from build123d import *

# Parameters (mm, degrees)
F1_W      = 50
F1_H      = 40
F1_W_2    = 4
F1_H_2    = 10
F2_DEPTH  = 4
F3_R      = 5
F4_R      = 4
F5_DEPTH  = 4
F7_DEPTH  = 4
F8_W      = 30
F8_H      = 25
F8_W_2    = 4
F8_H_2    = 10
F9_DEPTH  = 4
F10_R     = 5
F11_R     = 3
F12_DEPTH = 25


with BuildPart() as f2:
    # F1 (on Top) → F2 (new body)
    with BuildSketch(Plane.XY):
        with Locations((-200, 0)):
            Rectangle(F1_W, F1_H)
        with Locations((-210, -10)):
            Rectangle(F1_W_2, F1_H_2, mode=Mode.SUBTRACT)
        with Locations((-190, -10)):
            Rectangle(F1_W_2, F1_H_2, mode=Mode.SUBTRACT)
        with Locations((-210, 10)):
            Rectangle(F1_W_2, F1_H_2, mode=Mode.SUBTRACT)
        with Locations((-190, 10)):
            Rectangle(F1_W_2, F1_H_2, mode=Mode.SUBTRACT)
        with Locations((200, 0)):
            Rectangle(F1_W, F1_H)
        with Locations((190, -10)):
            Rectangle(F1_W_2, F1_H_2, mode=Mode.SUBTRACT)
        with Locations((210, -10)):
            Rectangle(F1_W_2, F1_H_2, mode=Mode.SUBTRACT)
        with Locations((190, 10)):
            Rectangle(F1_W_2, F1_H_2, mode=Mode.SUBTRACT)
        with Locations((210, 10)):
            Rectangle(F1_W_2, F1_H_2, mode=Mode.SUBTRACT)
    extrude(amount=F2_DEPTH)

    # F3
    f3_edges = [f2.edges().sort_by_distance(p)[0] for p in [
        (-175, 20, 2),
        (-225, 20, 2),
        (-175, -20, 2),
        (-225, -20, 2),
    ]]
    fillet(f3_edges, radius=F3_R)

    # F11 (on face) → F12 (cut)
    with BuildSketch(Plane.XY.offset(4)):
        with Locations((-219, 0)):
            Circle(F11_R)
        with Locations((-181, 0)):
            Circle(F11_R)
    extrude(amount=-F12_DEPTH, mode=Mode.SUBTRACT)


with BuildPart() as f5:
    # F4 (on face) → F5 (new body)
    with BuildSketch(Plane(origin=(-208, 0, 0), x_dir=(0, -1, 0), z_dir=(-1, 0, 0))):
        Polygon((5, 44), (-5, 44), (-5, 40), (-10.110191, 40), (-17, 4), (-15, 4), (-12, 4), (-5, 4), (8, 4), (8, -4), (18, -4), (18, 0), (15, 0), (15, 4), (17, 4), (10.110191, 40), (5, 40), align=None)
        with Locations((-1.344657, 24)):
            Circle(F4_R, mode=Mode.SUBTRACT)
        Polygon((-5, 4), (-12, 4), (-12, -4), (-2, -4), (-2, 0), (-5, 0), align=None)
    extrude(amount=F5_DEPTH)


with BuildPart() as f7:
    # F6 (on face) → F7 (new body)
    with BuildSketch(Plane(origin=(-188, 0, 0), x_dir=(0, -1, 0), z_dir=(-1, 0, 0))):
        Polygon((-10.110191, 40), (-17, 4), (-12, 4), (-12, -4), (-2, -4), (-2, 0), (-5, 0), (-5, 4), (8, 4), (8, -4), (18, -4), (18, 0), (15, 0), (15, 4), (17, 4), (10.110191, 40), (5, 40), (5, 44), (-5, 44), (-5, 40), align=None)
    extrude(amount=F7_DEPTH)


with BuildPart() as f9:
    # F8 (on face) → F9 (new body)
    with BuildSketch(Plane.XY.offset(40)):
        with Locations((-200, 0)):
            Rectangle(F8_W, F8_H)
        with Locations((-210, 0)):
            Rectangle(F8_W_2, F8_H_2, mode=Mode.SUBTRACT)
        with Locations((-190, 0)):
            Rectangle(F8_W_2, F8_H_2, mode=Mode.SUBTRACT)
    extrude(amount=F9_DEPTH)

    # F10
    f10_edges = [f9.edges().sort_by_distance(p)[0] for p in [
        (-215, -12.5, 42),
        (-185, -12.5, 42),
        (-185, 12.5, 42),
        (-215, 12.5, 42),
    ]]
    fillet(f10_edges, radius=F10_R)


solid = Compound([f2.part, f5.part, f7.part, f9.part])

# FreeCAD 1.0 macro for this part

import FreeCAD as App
import Part
import Sketcher
from FreeCAD import Vector


def edges_at(feature, points):
    """Names of the edges that pass closest to the given points."""
    edges = feature.Shape.Edges
    near = lambda p: min(range(len(edges)), key=lambda i: edges[i].distToShape(Part.Vertex(*p))[0])
    return sorted({f"Edge{near(p) + 1}" for p in points})

doc = App.newDocument("Part")
body = doc.addObject("PartDesign::Body", "Body")
body.AllowCompound = True

# Sketch on XY plane
sketch1 = doc.addObject("Sketcher::SketchObject", "Sketch")
body.addObject(sketch1)
sketch1.AttachmentSupport = (doc.XY_Plane, [""])
sketch1.MapMode = "FlatFace"
sketch1.addGeometry(Part.LineSegment(Vector(-225, 20, 0), Vector(-225, -20, 0)), False)
sketch1.addGeometry(Part.LineSegment(Vector(-225, -20, 0), Vector(-175, -20, 0)), False)
sketch1.addGeometry(Part.LineSegment(Vector(-175, -20, 0), Vector(-175, 20, 0)), False)
sketch1.addGeometry(Part.LineSegment(Vector(-175, 20, 0), Vector(-225, 20, 0)), False)
sketch1.addGeometry(Part.LineSegment(Vector(-208, -15, 0), Vector(-212, -15, 0)), False)
sketch1.addGeometry(Part.LineSegment(Vector(-212, -15, 0), Vector(-212, -5, 0)), False)
sketch1.addGeometry(Part.LineSegment(Vector(-212, -5, 0), Vector(-208, -5, 0)), False)
sketch1.addGeometry(Part.LineSegment(Vector(-208, -5, 0), Vector(-208, -15, 0)), False)
sketch1.addGeometry(Part.LineSegment(Vector(-188, -15, 0), Vector(-192, -15, 0)), False)
sketch1.addGeometry(Part.LineSegment(Vector(-192, -15, 0), Vector(-192, -5, 0)), False)
sketch1.addGeometry(Part.LineSegment(Vector(-192, -5, 0), Vector(-188, -5, 0)), False)
sketch1.addGeometry(Part.LineSegment(Vector(-188, -5, 0), Vector(-188, -15, 0)), False)
sketch1.addGeometry(Part.LineSegment(Vector(-208, 5, 0), Vector(-212, 5, 0)), False)
sketch1.addGeometry(Part.LineSegment(Vector(-212, 5, 0), Vector(-212, 15, 0)), False)
sketch1.addGeometry(Part.LineSegment(Vector(-212, 15, 0), Vector(-208, 15, 0)), False)
sketch1.addGeometry(Part.LineSegment(Vector(-208, 15, 0), Vector(-208, 5, 0)), False)
sketch1.addGeometry(Part.LineSegment(Vector(-188, 5, 0), Vector(-192, 5, 0)), False)
sketch1.addGeometry(Part.LineSegment(Vector(-192, 5, 0), Vector(-192, 15, 0)), False)
sketch1.addGeometry(Part.LineSegment(Vector(-192, 15, 0), Vector(-188, 15, 0)), False)
sketch1.addGeometry(Part.LineSegment(Vector(-188, 15, 0), Vector(-188, 5, 0)), False)
sketch1.addGeometry(Part.LineSegment(Vector(175, 20, 0), Vector(175, -20, 0)), False)
sketch1.addGeometry(Part.LineSegment(Vector(175, -20, 0), Vector(225, -20, 0)), False)
sketch1.addGeometry(Part.LineSegment(Vector(225, -20, 0), Vector(225, 20, 0)), False)
sketch1.addGeometry(Part.LineSegment(Vector(225, 20, 0), Vector(175, 20, 0)), False)
sketch1.addGeometry(Part.LineSegment(Vector(192, -15, 0), Vector(188, -15, 0)), False)
sketch1.addGeometry(Part.LineSegment(Vector(188, -15, 0), Vector(188, -5, 0)), False)
sketch1.addGeometry(Part.LineSegment(Vector(188, -5, 0), Vector(192, -5, 0)), False)
sketch1.addGeometry(Part.LineSegment(Vector(192, -5, 0), Vector(192, -15, 0)), False)
sketch1.addGeometry(Part.LineSegment(Vector(212, -15, 0), Vector(208, -15, 0)), False)
sketch1.addGeometry(Part.LineSegment(Vector(208, -15, 0), Vector(208, -5, 0)), False)
sketch1.addGeometry(Part.LineSegment(Vector(208, -5, 0), Vector(212, -5, 0)), False)
sketch1.addGeometry(Part.LineSegment(Vector(212, -5, 0), Vector(212, -15, 0)), False)
sketch1.addGeometry(Part.LineSegment(Vector(192, 5, 0), Vector(188, 5, 0)), False)
sketch1.addGeometry(Part.LineSegment(Vector(188, 5, 0), Vector(188, 15, 0)), False)
sketch1.addGeometry(Part.LineSegment(Vector(188, 15, 0), Vector(192, 15, 0)), False)
sketch1.addGeometry(Part.LineSegment(Vector(192, 15, 0), Vector(192, 5, 0)), False)
sketch1.addGeometry(Part.LineSegment(Vector(212, 5, 0), Vector(208, 5, 0)), False)
sketch1.addGeometry(Part.LineSegment(Vector(208, 5, 0), Vector(208, 15, 0)), False)
sketch1.addGeometry(Part.LineSegment(Vector(208, 15, 0), Vector(212, 15, 0)), False)
sketch1.addGeometry(Part.LineSegment(Vector(212, 15, 0), Vector(212, 5, 0)), False)
sketch1.addConstraint(Sketcher.Constraint("Coincident", 0, 2, 1, 1))
sketch1.addConstraint(Sketcher.Constraint("Coincident", 1, 2, 2, 1))
sketch1.addConstraint(Sketcher.Constraint("Coincident", 2, 2, 3, 1))
sketch1.addConstraint(Sketcher.Constraint("Coincident", 3, 2, 0, 1))
sketch1.addConstraint(Sketcher.Constraint("Coincident", 4, 2, 5, 1))
sketch1.addConstraint(Sketcher.Constraint("Coincident", 5, 2, 6, 1))
sketch1.addConstraint(Sketcher.Constraint("Coincident", 6, 2, 7, 1))
sketch1.addConstraint(Sketcher.Constraint("Coincident", 7, 2, 4, 1))
sketch1.addConstraint(Sketcher.Constraint("Coincident", 8, 2, 9, 1))
sketch1.addConstraint(Sketcher.Constraint("Coincident", 9, 2, 10, 1))
sketch1.addConstraint(Sketcher.Constraint("Coincident", 10, 2, 11, 1))
sketch1.addConstraint(Sketcher.Constraint("Coincident", 11, 2, 8, 1))
sketch1.addConstraint(Sketcher.Constraint("Coincident", 12, 2, 13, 1))
sketch1.addConstraint(Sketcher.Constraint("Coincident", 13, 2, 14, 1))
sketch1.addConstraint(Sketcher.Constraint("Coincident", 14, 2, 15, 1))
sketch1.addConstraint(Sketcher.Constraint("Coincident", 15, 2, 12, 1))
sketch1.addConstraint(Sketcher.Constraint("Coincident", 16, 2, 17, 1))
sketch1.addConstraint(Sketcher.Constraint("Coincident", 17, 2, 18, 1))
sketch1.addConstraint(Sketcher.Constraint("Coincident", 18, 2, 19, 1))
sketch1.addConstraint(Sketcher.Constraint("Coincident", 19, 2, 16, 1))
sketch1.addConstraint(Sketcher.Constraint("Coincident", 20, 2, 21, 1))
sketch1.addConstraint(Sketcher.Constraint("Coincident", 21, 2, 22, 1))
sketch1.addConstraint(Sketcher.Constraint("Coincident", 22, 2, 23, 1))
sketch1.addConstraint(Sketcher.Constraint("Coincident", 23, 2, 20, 1))
sketch1.addConstraint(Sketcher.Constraint("Coincident", 24, 2, 25, 1))
sketch1.addConstraint(Sketcher.Constraint("Coincident", 25, 2, 26, 1))
sketch1.addConstraint(Sketcher.Constraint("Coincident", 26, 2, 27, 1))
sketch1.addConstraint(Sketcher.Constraint("Coincident", 27, 2, 24, 1))
sketch1.addConstraint(Sketcher.Constraint("Coincident", 28, 2, 29, 1))
sketch1.addConstraint(Sketcher.Constraint("Coincident", 29, 2, 30, 1))
sketch1.addConstraint(Sketcher.Constraint("Coincident", 30, 2, 31, 1))
sketch1.addConstraint(Sketcher.Constraint("Coincident", 31, 2, 28, 1))
sketch1.addConstraint(Sketcher.Constraint("Coincident", 32, 2, 33, 1))
sketch1.addConstraint(Sketcher.Constraint("Coincident", 33, 2, 34, 1))
sketch1.addConstraint(Sketcher.Constraint("Coincident", 34, 2, 35, 1))
sketch1.addConstraint(Sketcher.Constraint("Coincident", 35, 2, 32, 1))
sketch1.addConstraint(Sketcher.Constraint("Coincident", 36, 2, 37, 1))
sketch1.addConstraint(Sketcher.Constraint("Coincident", 37, 2, 38, 1))
sketch1.addConstraint(Sketcher.Constraint("Coincident", 38, 2, 39, 1))
sketch1.addConstraint(Sketcher.Constraint("Coincident", 39, 2, 36, 1))
sketch1.addConstraint(Sketcher.Constraint("Vertical", 0))
sketch1.addConstraint(Sketcher.Constraint("Horizontal", 1))
sketch1.addConstraint(Sketcher.Constraint("Vertical", 2))
sketch1.addConstraint(Sketcher.Constraint("Horizontal", 3))
sketch1.addConstraint(Sketcher.Constraint("Horizontal", 4))
sketch1.addConstraint(Sketcher.Constraint("Vertical", 5))
sketch1.addConstraint(Sketcher.Constraint("Horizontal", 6))
sketch1.addConstraint(Sketcher.Constraint("Vertical", 7))
sketch1.addConstraint(Sketcher.Constraint("Horizontal", 8))
sketch1.addConstraint(Sketcher.Constraint("Vertical", 9))
sketch1.addConstraint(Sketcher.Constraint("Horizontal", 10))
sketch1.addConstraint(Sketcher.Constraint("Vertical", 11))
sketch1.addConstraint(Sketcher.Constraint("Horizontal", 12))
sketch1.addConstraint(Sketcher.Constraint("Vertical", 13))
sketch1.addConstraint(Sketcher.Constraint("Horizontal", 14))
sketch1.addConstraint(Sketcher.Constraint("Vertical", 15))
sketch1.addConstraint(Sketcher.Constraint("Horizontal", 16))
sketch1.addConstraint(Sketcher.Constraint("Vertical", 17))
sketch1.addConstraint(Sketcher.Constraint("Horizontal", 18))
sketch1.addConstraint(Sketcher.Constraint("Vertical", 19))
sketch1.addConstraint(Sketcher.Constraint("Vertical", 20))
sketch1.addConstraint(Sketcher.Constraint("Horizontal", 21))
sketch1.addConstraint(Sketcher.Constraint("Vertical", 22))
sketch1.addConstraint(Sketcher.Constraint("Horizontal", 23))
sketch1.addConstraint(Sketcher.Constraint("Horizontal", 24))
sketch1.addConstraint(Sketcher.Constraint("Vertical", 25))
sketch1.addConstraint(Sketcher.Constraint("Horizontal", 26))
sketch1.addConstraint(Sketcher.Constraint("Vertical", 27))
sketch1.addConstraint(Sketcher.Constraint("Horizontal", 28))
sketch1.addConstraint(Sketcher.Constraint("Vertical", 29))
sketch1.addConstraint(Sketcher.Constraint("Horizontal", 30))
sketch1.addConstraint(Sketcher.Constraint("Vertical", 31))
sketch1.addConstraint(Sketcher.Constraint("Horizontal", 32))
sketch1.addConstraint(Sketcher.Constraint("Vertical", 33))
sketch1.addConstraint(Sketcher.Constraint("Horizontal", 34))
sketch1.addConstraint(Sketcher.Constraint("Vertical", 35))
sketch1.addConstraint(Sketcher.Constraint("Horizontal", 36))
sketch1.addConstraint(Sketcher.Constraint("Vertical", 37))
sketch1.addConstraint(Sketcher.Constraint("Horizontal", 38))
sketch1.addConstraint(Sketcher.Constraint("Vertical", 39))
sketch1.addConstraint(Sketcher.Constraint("Symmetric", 2, 2, 20, 2, -1, 1))
sketch1.addConstraint(Sketcher.Constraint("Symmetric", 0, 2, 22, 2, -1, 1))
sketch1.addConstraint(Sketcher.Constraint("Symmetric", 18, 2, 24, 2, -1, 1))
sketch1.addConstraint(Sketcher.Constraint("Symmetric", 16, 2, 26, 2, -1, 1))
sketch1.addConstraint(Sketcher.Constraint("Symmetric", 14, 2, 28, 2, -1, 1))
sketch1.addConstraint(Sketcher.Constraint("Symmetric", 12, 2, 30, 2, -1, 1))
sketch1.addConstraint(Sketcher.Constraint("Symmetric", 10, 2, 32, 2, -1, 1))
sketch1.addConstraint(Sketcher.Constraint("Symmetric", 8, 2, 34, 2, -1, 1))
sketch1.addConstraint(Sketcher.Constraint("Symmetric", 6, 2, 36, 2, -1, 1))
sketch1.addConstraint(Sketcher.Constraint("Symmetric", 4, 2, 38, 2, -1, 1))
sketch1.addConstraint(Sketcher.Constraint("Symmetric", 11, 2, 24, 2, -2))
sketch1.addConstraint(Sketcher.Constraint("Symmetric", 9, 2, 26, 2, -2))
sketch1.addConstraint(Sketcher.Constraint("Symmetric", 7, 2, 28, 2, -2))
sketch1.addConstraint(Sketcher.Constraint("Symmetric", 5, 2, 30, 2, -2))
sketch1.addConstraint(Sketcher.Constraint("Horizontal", 7, 2, 8, 2))
sketch1.addConstraint(Sketcher.Constraint("Horizontal", 6, 2, 9, 2))
sketch1.addConstraint(Sketcher.Constraint("Horizontal", 1, 2, 20, 2))
sketch1.addConstraint(Sketcher.Constraint("Equal", 6, 8))
sketch1.addConstraint(Sketcher.Constraint("DistanceX", 1, 1, 1, 2, 50.0))
sketch1.addConstraint(Sketcher.Constraint("DistanceX", 4, 2, 4, 1, 4.0))
sketch1.addConstraint(Sketcher.Constraint("DistanceY", 0, 2, 0, 1, 40.0))
sketch1.addConstraint(Sketcher.Constraint("DistanceY", 5, 1, 5, 2, 10.0))
sketch1.addConstraint(Sketcher.Constraint("DistanceX", 0, 2, -1, 1, 225.0))
sketch1.addConstraint(Sketcher.Constraint("DistanceX", 4, 2, -1, 1, 212.0))
sketch1.addConstraint(Sketcher.Constraint("DistanceY", 4, 2, -1, 1, 15.0))
sketch1.addConstraint(Sketcher.Constraint("DistanceX", 8, 2, -1, 1, 192.0))
pad1 = doc.addObject("PartDesign::Pad", "Pad")
body.addObject(pad1)
pad1.Profile = sketch1
pad1.Length = 4
doc.recompute()

fillet = doc.addObject("PartDesign::Fillet", "Fillet")
body.addObject(fillet)
fillet.Base = (pad1, edges_at(pad1, [
    (-175, 20, 2),
    (-225, 20, 2),
    (-175, -20, 2),
    (-225, -20, 2),
]))
fillet.Radius = 5

# Sketch on XY plane
sketch2 = doc.addObject("Sketcher::SketchObject", "Sketch001")
body.addObject(sketch2)
sketch2.AttachmentSupport = (doc.XY_Plane, [""])
sketch2.MapMode = "FlatFace"
sketch2.AttachmentOffset = App.Placement(Vector(0, 0, 4), App.Rotation())
sketch2.addGeometry(Part.Circle(Vector(-219, 0, 0), Vector(0, 0, 1), 3), False)
sketch2.addGeometry(Part.Circle(Vector(-181, 0, 0), Vector(0, 0, 1), 3), False)
sketch2.addConstraint(Sketcher.Constraint("Equal", 0, 1))
sketch2.addConstraint(Sketcher.Constraint("PointOnObject", 0, 3, -1))
sketch2.addConstraint(Sketcher.Constraint("PointOnObject", 1, 3, -1))
sketch2.addConstraint(Sketcher.Constraint("Diameter", 0, 6.0))
sketch2.addConstraint(Sketcher.Constraint("DistanceX", 0, 3, -1, 1, 219.0))
sketch2.addConstraint(Sketcher.Constraint("DistanceX", 1, 3, -1, 1, 181.0))
pocket1 = doc.addObject("PartDesign::Pocket", "Pocket")
body.addObject(pocket1)
pocket1.Profile = sketch2
pocket1.Length = 25
body2 = doc.addObject("PartDesign::Body", "Body001")

# Sketch on YZ plane
sketch3 = doc.addObject("Sketcher::SketchObject", "Sketch002")
body2.addObject(sketch3)
sketch3.AttachmentSupport = (doc.getObject("YZ_Plane001"), [""])
sketch3.MapMode = "FlatFace"
sketch3.AttachmentOffset = App.Placement(Vector(0, 0, -208), App.Rotation())
sketch3.addGeometry(Part.LineSegment(Vector(-5, 44, 0), Vector(5, 44, 0)), False)
sketch3.addGeometry(Part.LineSegment(Vector(5, 44, 0), Vector(5, 40, 0)), False)
sketch3.addGeometry(Part.LineSegment(Vector(5, 40, 0), Vector(10.1, 40, 0)), False)
sketch3.addGeometry(Part.LineSegment(Vector(10.1, 40, 0), Vector(17, 4, 0)), False)
sketch3.addGeometry(Part.LineSegment(Vector(17, 4, 0), Vector(12, 4, 0)), False)
sketch3.addGeometry(Part.LineSegment(Vector(12, 4, 0), Vector(12, -4, 0)), False)
sketch3.addGeometry(Part.LineSegment(Vector(12, -4, 0), Vector(2, -4, 0)), False)
sketch3.addGeometry(Part.LineSegment(Vector(2, -4, 0), Vector(2, 0, 0)), False)
sketch3.addGeometry(Part.LineSegment(Vector(2, 0, 0), Vector(5, 0, 0)), False)
sketch3.addGeometry(Part.LineSegment(Vector(5, 0, 0), Vector(5, 4, 0)), False)
sketch3.addGeometry(Part.LineSegment(Vector(5, 4, 0), Vector(-8, 4, 0)), False)
sketch3.addGeometry(Part.LineSegment(Vector(-8, 4, 0), Vector(-8, -4, 0)), False)
sketch3.addGeometry(Part.LineSegment(Vector(-8, -4, 0), Vector(-18, -4, 0)), False)
sketch3.addGeometry(Part.LineSegment(Vector(-18, -4, 0), Vector(-18, 0, 0)), False)
sketch3.addGeometry(Part.LineSegment(Vector(-18, 0, 0), Vector(-15, 0, 0)), False)
sketch3.addGeometry(Part.LineSegment(Vector(-15, 0, 0), Vector(-15, 4, 0)), False)
sketch3.addGeometry(Part.LineSegment(Vector(-15, 4, 0), Vector(-17, 4, 0)), False)
sketch3.addGeometry(Part.LineSegment(Vector(-17, 4, 0), Vector(-10.1, 40, 0)), False)
sketch3.addGeometry(Part.LineSegment(Vector(-10.1, 40, 0), Vector(-5, 40, 0)), False)
sketch3.addGeometry(Part.LineSegment(Vector(-5, 40, 0), Vector(-5, 44, 0)), False)
sketch3.addGeometry(Part.Circle(Vector(1.3, 24, 0), Vector(0, 0, 1), 4), False)
sketch3.addConstraint(Sketcher.Constraint("Coincident", 0, 2, 1, 1))
sketch3.addConstraint(Sketcher.Constraint("Coincident", 1, 2, 2, 1))
sketch3.addConstraint(Sketcher.Constraint("Coincident", 2, 2, 3, 1))
sketch3.addConstraint(Sketcher.Constraint("Coincident", 3, 2, 4, 1))
sketch3.addConstraint(Sketcher.Constraint("Coincident", 4, 2, 5, 1))
sketch3.addConstraint(Sketcher.Constraint("Coincident", 5, 2, 6, 1))
sketch3.addConstraint(Sketcher.Constraint("Coincident", 6, 2, 7, 1))
sketch3.addConstraint(Sketcher.Constraint("Coincident", 7, 2, 8, 1))
sketch3.addConstraint(Sketcher.Constraint("Coincident", 8, 2, 9, 1))
sketch3.addConstraint(Sketcher.Constraint("Coincident", 9, 2, 10, 1))
sketch3.addConstraint(Sketcher.Constraint("Coincident", 10, 2, 11, 1))
sketch3.addConstraint(Sketcher.Constraint("Coincident", 11, 2, 12, 1))
sketch3.addConstraint(Sketcher.Constraint("Coincident", 12, 2, 13, 1))
sketch3.addConstraint(Sketcher.Constraint("Coincident", 13, 2, 14, 1))
sketch3.addConstraint(Sketcher.Constraint("Coincident", 14, 2, 15, 1))
sketch3.addConstraint(Sketcher.Constraint("Coincident", 15, 2, 16, 1))
sketch3.addConstraint(Sketcher.Constraint("Coincident", 16, 2, 17, 1))
sketch3.addConstraint(Sketcher.Constraint("Coincident", 17, 2, 18, 1))
sketch3.addConstraint(Sketcher.Constraint("Coincident", 18, 2, 19, 1))
sketch3.addConstraint(Sketcher.Constraint("Coincident", 19, 2, 0, 1))
sketch3.addConstraint(Sketcher.Constraint("Horizontal", 0))
sketch3.addConstraint(Sketcher.Constraint("Vertical", 1))
sketch3.addConstraint(Sketcher.Constraint("Horizontal", 2))
sketch3.addConstraint(Sketcher.Constraint("Horizontal", 4))
sketch3.addConstraint(Sketcher.Constraint("Vertical", 5))
sketch3.addConstraint(Sketcher.Constraint("Horizontal", 6))
sketch3.addConstraint(Sketcher.Constraint("Vertical", 7))
sketch3.addConstraint(Sketcher.Constraint("Horizontal", 8))
sketch3.addConstraint(Sketcher.Constraint("Vertical", 9))
sketch3.addConstraint(Sketcher.Constraint("Horizontal", 10))
sketch3.addConstraint(Sketcher.Constraint("Vertical", 11))
sketch3.addConstraint(Sketcher.Constraint("Horizontal", 12))
sketch3.addConstraint(Sketcher.Constraint("Vertical", 13))
sketch3.addConstraint(Sketcher.Constraint("Horizontal", 14))
sketch3.addConstraint(Sketcher.Constraint("Vertical", 15))
sketch3.addConstraint(Sketcher.Constraint("Horizontal", 16))
sketch3.addConstraint(Sketcher.Constraint("Horizontal", 18))
sketch3.addConstraint(Sketcher.Constraint("Vertical", 19))
sketch3.addConstraint(Sketcher.Constraint("Symmetric", 3, 2, 16, 2, -2))
sketch3.addConstraint(Sketcher.Constraint("Symmetric", 2, 2, 17, 2, -2))
sketch3.addConstraint(Sketcher.Constraint("PointOnObject", 7, 2, -1))
sketch3.addConstraint(Sketcher.Constraint("PointOnObject", 13, 2, -1))
sketch3.addConstraint(Sketcher.Constraint("Horizontal", 4, 2, 9, 2))
sketch3.addConstraint(Sketcher.Constraint("Horizontal", 6, 2, 11, 2))
sketch3.addConstraint(Sketcher.Constraint("Vertical", 1, 2, 8, 2))
sketch3.addConstraint(Sketcher.Constraint("Equal", 0, 6))
sketch3.addConstraint(Sketcher.Constraint("Equal", 6, 12))
sketch3.addConstraint(Sketcher.Constraint("Equal", 8, 14))
sketch3.addConstraint(Sketcher.Constraint("Equal", 2, 18))
sketch3.addConstraint(Sketcher.Constraint("Equal", 1, 7))
sketch3.addConstraint(Sketcher.Constraint("Equal", 7, 9))
sketch3.addConstraint(Sketcher.Constraint("Diameter", 20, 8.0))
sketch3.addConstraint(Sketcher.Constraint("DistanceX", 0, 1, 0, 2, 10.0))
sketch3.addConstraint(Sketcher.Constraint("DistanceX", 4, 2, 4, 1, 5.0))
sketch3.addConstraint(Sketcher.Constraint("DistanceX", 8, 1, 8, 2, 3.0))
sketch3.addConstraint(Sketcher.Constraint("DistanceX", 10, 2, 10, 1, 13.0))
sketch3.addConstraint(Sketcher.Constraint("DistanceY", 1, 2, 1, 1, 4.0))
sketch3.addConstraint(Sketcher.Constraint("DistanceY", -1, 1, 20, 3, 24.0))
sketch3.addConstraint(Sketcher.Constraint("DistanceY", -1, 1, 0, 2, 44.0))
sketch3.addConstraint(Sketcher.Constraint("DistanceX", 2, 1, 2, 2, 5.110191))
sketch3.addConstraint(Sketcher.Constraint("DistanceX", -1, 1, 20, 3, 1.344657))
pad2 = doc.addObject("PartDesign::Pad", "Pad001")
body2.addObject(pad2)
pad2.Profile = sketch3
pad2.Length = 4
pad2.Reversed = True
body3 = doc.addObject("PartDesign::Body", "Body002")

# Sketch on YZ plane
sketch4 = doc.addObject("Sketcher::SketchObject", "Sketch003")
body3.addObject(sketch4)
sketch4.AttachmentSupport = (doc.getObject("YZ_Plane002"), [""])
sketch4.MapMode = "FlatFace"
sketch4.AttachmentOffset = App.Placement(Vector(0, 0, -188), App.Rotation())
sketch4.addGeometry(Part.LineSegment(Vector(10.1, 40, 0), Vector(17, 4, 0)), False)
sketch4.addGeometry(Part.LineSegment(Vector(17, 4, 0), Vector(12, 4, 0)), False)
sketch4.addGeometry(Part.LineSegment(Vector(12, 4, 0), Vector(12, -4, 0)), False)
sketch4.addGeometry(Part.LineSegment(Vector(12, -4, 0), Vector(2, -4, 0)), False)
sketch4.addGeometry(Part.LineSegment(Vector(2, -4, 0), Vector(2, 0, 0)), False)
sketch4.addGeometry(Part.LineSegment(Vector(2, 0, 0), Vector(5, 0, 0)), False)
sketch4.addGeometry(Part.LineSegment(Vector(5, 0, 0), Vector(5, 4, 0)), False)
sketch4.addGeometry(Part.LineSegment(Vector(5, 4, 0), Vector(-8, 4, 0)), False)
sketch4.addGeometry(Part.LineSegment(Vector(-8, 4, 0), Vector(-8, -4, 0)), False)
sketch4.addGeometry(Part.LineSegment(Vector(-8, -4, 0), Vector(-18, -4, 0)), False)
sketch4.addGeometry(Part.LineSegment(Vector(-18, -4, 0), Vector(-18, 0, 0)), False)
sketch4.addGeometry(Part.LineSegment(Vector(-18, 0, 0), Vector(-15, 0, 0)), False)
sketch4.addGeometry(Part.LineSegment(Vector(-15, 0, 0), Vector(-15, 4, 0)), False)
sketch4.addGeometry(Part.LineSegment(Vector(-15, 4, 0), Vector(-17, 4, 0)), False)
sketch4.addGeometry(Part.LineSegment(Vector(-17, 4, 0), Vector(-10.1, 40, 0)), False)
sketch4.addGeometry(Part.LineSegment(Vector(-10.1, 40, 0), Vector(-5, 40, 0)), False)
sketch4.addGeometry(Part.LineSegment(Vector(-5, 40, 0), Vector(-5, 44, 0)), False)
sketch4.addGeometry(Part.LineSegment(Vector(-5, 44, 0), Vector(5, 44, 0)), False)
sketch4.addGeometry(Part.LineSegment(Vector(5, 44, 0), Vector(5, 40, 0)), False)
sketch4.addGeometry(Part.LineSegment(Vector(5, 40, 0), Vector(10.1, 40, 0)), False)
sketch4.addConstraint(Sketcher.Constraint("Coincident", 0, 2, 1, 1))
sketch4.addConstraint(Sketcher.Constraint("Coincident", 1, 2, 2, 1))
sketch4.addConstraint(Sketcher.Constraint("Coincident", 2, 2, 3, 1))
sketch4.addConstraint(Sketcher.Constraint("Coincident", 3, 2, 4, 1))
sketch4.addConstraint(Sketcher.Constraint("Coincident", 4, 2, 5, 1))
sketch4.addConstraint(Sketcher.Constraint("Coincident", 5, 2, 6, 1))
sketch4.addConstraint(Sketcher.Constraint("Coincident", 6, 2, 7, 1))
sketch4.addConstraint(Sketcher.Constraint("Coincident", 7, 2, 8, 1))
sketch4.addConstraint(Sketcher.Constraint("Coincident", 8, 2, 9, 1))
sketch4.addConstraint(Sketcher.Constraint("Coincident", 9, 2, 10, 1))
sketch4.addConstraint(Sketcher.Constraint("Coincident", 10, 2, 11, 1))
sketch4.addConstraint(Sketcher.Constraint("Coincident", 11, 2, 12, 1))
sketch4.addConstraint(Sketcher.Constraint("Coincident", 12, 2, 13, 1))
sketch4.addConstraint(Sketcher.Constraint("Coincident", 13, 2, 14, 1))
sketch4.addConstraint(Sketcher.Constraint("Coincident", 14, 2, 15, 1))
sketch4.addConstraint(Sketcher.Constraint("Coincident", 15, 2, 16, 1))
sketch4.addConstraint(Sketcher.Constraint("Coincident", 16, 2, 17, 1))
sketch4.addConstraint(Sketcher.Constraint("Coincident", 17, 2, 18, 1))
sketch4.addConstraint(Sketcher.Constraint("Coincident", 18, 2, 19, 1))
sketch4.addConstraint(Sketcher.Constraint("Coincident", 19, 2, 0, 1))
sketch4.addConstraint(Sketcher.Constraint("Horizontal", 1))
sketch4.addConstraint(Sketcher.Constraint("Vertical", 2))
sketch4.addConstraint(Sketcher.Constraint("Horizontal", 3))
sketch4.addConstraint(Sketcher.Constraint("Vertical", 4))
sketch4.addConstraint(Sketcher.Constraint("Horizontal", 5))
sketch4.addConstraint(Sketcher.Constraint("Vertical", 6))
sketch4.addConstraint(Sketcher.Constraint("Horizontal", 7))
sketch4.addConstraint(Sketcher.Constraint("Vertical", 8))
sketch4.addConstraint(Sketcher.Constraint("Horizontal", 9))
sketch4.addConstraint(Sketcher.Constraint("Vertical", 10))
sketch4.addConstraint(Sketcher.Constraint("Horizontal", 11))
sketch4.addConstraint(Sketcher.Constraint("Vertical", 12))
sketch4.addConstraint(Sketcher.Constraint("Horizontal", 13))
sketch4.addConstraint(Sketcher.Constraint("Horizontal", 15))
sketch4.addConstraint(Sketcher.Constraint("Vertical", 16))
sketch4.addConstraint(Sketcher.Constraint("Horizontal", 17))
sketch4.addConstraint(Sketcher.Constraint("Vertical", 18))
sketch4.addConstraint(Sketcher.Constraint("Horizontal", 19))
sketch4.addConstraint(Sketcher.Constraint("Symmetric", 0, 2, 13, 2, -2))
sketch4.addConstraint(Sketcher.Constraint("Symmetric", 15, 2, 18, 2, -2))
sketch4.addConstraint(Sketcher.Constraint("PointOnObject", 4, 2, -1))
sketch4.addConstraint(Sketcher.Constraint("PointOnObject", 10, 2, -1))
sketch4.addConstraint(Sketcher.Constraint("Horizontal", 1, 2, 6, 2))
sketch4.addConstraint(Sketcher.Constraint("Horizontal", 3, 2, 8, 2))
sketch4.addConstraint(Sketcher.Constraint("Vertical", 6, 2, 17, 2))
sketch4.addConstraint(Sketcher.Constraint("Equal", 3, 9))
sketch4.addConstraint(Sketcher.Constraint("Equal", 5, 11))
sketch4.addConstraint(Sketcher.Constraint("Equal", 9, 17))
sketch4.addConstraint(Sketcher.Constraint("Equal", 15, 19))
sketch4.addConstraint(Sketcher.Constraint("Equal", 4, 6))
sketch4.addConstraint(Sketcher.Constraint("Equal", 12, 16))
sketch4.addConstraint(Sketcher.Constraint("DistanceX", 1, 2, 1, 1, 5.0))
sketch4.addConstraint(Sketcher.Constraint("DistanceX", 3, 2, 3, 1, 10.0))
sketch4.addConstraint(Sketcher.Constraint("DistanceX", 5, 1, 5, 2, 3.0))
sketch4.addConstraint(Sketcher.Constraint("DistanceX", 7, 2, 7, 1, 13.0))
sketch4.addConstraint(Sketcher.Constraint("DistanceY", 2, 2, 2, 1, 8.0))
sketch4.addConstraint(Sketcher.Constraint("DistanceY", -1, 1, 14, 2, 40.0))
sketch4.addConstraint(Sketcher.Constraint("DistanceX", 15, 1, 15, 2, 5.110191))
pad3 = doc.addObject("PartDesign::Pad", "Pad002")
body3.addObject(pad3)
pad3.Profile = sketch4
pad3.Length = 4
pad3.Reversed = True
body4 = doc.addObject("PartDesign::Body", "Body003")

# Sketch on XY plane
sketch5 = doc.addObject("Sketcher::SketchObject", "Sketch004")
body4.addObject(sketch5)
sketch5.AttachmentSupport = (doc.getObject("XY_Plane003"), [""])
sketch5.MapMode = "FlatFace"
sketch5.AttachmentOffset = App.Placement(Vector(0, 0, 40), App.Rotation())
sketch5.addGeometry(Part.LineSegment(Vector(-215, 12.5, 0), Vector(-215, -12.5, 0)), False)
sketch5.addGeometry(Part.LineSegment(Vector(-215, -12.5, 0), Vector(-185, -12.5, 0)), False)
sketch5.addGeometry(Part.LineSegment(Vector(-185, -12.5, 0), Vector(-185, 12.5, 0)), False)
sketch5.addGeometry(Part.LineSegment(Vector(-185, 12.5, 0), Vector(-215, 12.5, 0)), False)
sketch5.addGeometry(Part.LineSegment(Vector(-208, -5, 0), Vector(-212, -5, 0)), False)
sketch5.addGeometry(Part.LineSegment(Vector(-212, -5, 0), Vector(-212, 5, 0)), False)
sketch5.addGeometry(Part.LineSegment(Vector(-212, 5, 0), Vector(-208, 5, 0)), False)
sketch5.addGeometry(Part.LineSegment(Vector(-208, 5, 0), Vector(-208, -5, 0)), False)
sketch5.addGeometry(Part.LineSegment(Vector(-188, -5, 0), Vector(-192, -5, 0)), False)
sketch5.addGeometry(Part.LineSegment(Vector(-192, -5, 0), Vector(-192, 5, 0)), False)
sketch5.addGeometry(Part.LineSegment(Vector(-192, 5, 0), Vector(-188, 5, 0)), False)
sketch5.addGeometry(Part.LineSegment(Vector(-188, 5, 0), Vector(-188, -5, 0)), False)
sketch5.addConstraint(Sketcher.Constraint("Coincident", 0, 2, 1, 1))
sketch5.addConstraint(Sketcher.Constraint("Coincident", 1, 2, 2, 1))
sketch5.addConstraint(Sketcher.Constraint("Coincident", 2, 2, 3, 1))
sketch5.addConstraint(Sketcher.Constraint("Coincident", 3, 2, 0, 1))
sketch5.addConstraint(Sketcher.Constraint("Coincident", 4, 2, 5, 1))
sketch5.addConstraint(Sketcher.Constraint("Coincident", 5, 2, 6, 1))
sketch5.addConstraint(Sketcher.Constraint("Coincident", 6, 2, 7, 1))
sketch5.addConstraint(Sketcher.Constraint("Coincident", 7, 2, 4, 1))
sketch5.addConstraint(Sketcher.Constraint("Coincident", 8, 2, 9, 1))
sketch5.addConstraint(Sketcher.Constraint("Coincident", 9, 2, 10, 1))
sketch5.addConstraint(Sketcher.Constraint("Coincident", 10, 2, 11, 1))
sketch5.addConstraint(Sketcher.Constraint("Coincident", 11, 2, 8, 1))
sketch5.addConstraint(Sketcher.Constraint("Vertical", 0))
sketch5.addConstraint(Sketcher.Constraint("Horizontal", 1))
sketch5.addConstraint(Sketcher.Constraint("Vertical", 2))
sketch5.addConstraint(Sketcher.Constraint("Horizontal", 3))
sketch5.addConstraint(Sketcher.Constraint("Horizontal", 4))
sketch5.addConstraint(Sketcher.Constraint("Vertical", 5))
sketch5.addConstraint(Sketcher.Constraint("Horizontal", 6))
sketch5.addConstraint(Sketcher.Constraint("Vertical", 7))
sketch5.addConstraint(Sketcher.Constraint("Horizontal", 8))
sketch5.addConstraint(Sketcher.Constraint("Vertical", 9))
sketch5.addConstraint(Sketcher.Constraint("Horizontal", 10))
sketch5.addConstraint(Sketcher.Constraint("Vertical", 11))
sketch5.addConstraint(Sketcher.Constraint("Horizontal", 7, 2, 8, 2))
sketch5.addConstraint(Sketcher.Constraint("Horizontal", 6, 2, 9, 2))
sketch5.addConstraint(Sketcher.Constraint("Equal", 6, 8))
sketch5.addConstraint(Sketcher.Constraint("DistanceX", 1, 1, 1, 2, 30.0))
sketch5.addConstraint(Sketcher.Constraint("DistanceX", 4, 2, 4, 1, 4.0))
sketch5.addConstraint(Sketcher.Constraint("DistanceY", 0, 2, 0, 1, 25.0))
sketch5.addConstraint(Sketcher.Constraint("DistanceY", 5, 1, 5, 2, 10.0))
sketch5.addConstraint(Sketcher.Constraint("DistanceX", 0, 2, -1, 1, 215.0))
sketch5.addConstraint(Sketcher.Constraint("DistanceX", 4, 2, -1, 1, 212.0))
sketch5.addConstraint(Sketcher.Constraint("DistanceY", 4, 2, -1, 1, 5.0))
sketch5.addConstraint(Sketcher.Constraint("DistanceX", 8, 2, -1, 1, 192.0))
sketch5.addConstraint(Sketcher.Constraint("DistanceY", 0, 2, -1, 1, 12.5))
pad4 = doc.addObject("PartDesign::Pad", "Pad003")
body4.addObject(pad4)
pad4.Profile = sketch5
pad4.Length = 4
doc.recompute()

fillet2 = doc.addObject("PartDesign::Fillet", "Fillet001")
body4.addObject(fillet2)
fillet2.Base = (pad4, edges_at(pad4, [
    (-215, -12.5, 42),
    (-185, -12.5, 42),
    (-185, 12.5, 42),
    (-215, 12.5, 42),
]))
fillet2.Radius = 5

doc.recompute()
